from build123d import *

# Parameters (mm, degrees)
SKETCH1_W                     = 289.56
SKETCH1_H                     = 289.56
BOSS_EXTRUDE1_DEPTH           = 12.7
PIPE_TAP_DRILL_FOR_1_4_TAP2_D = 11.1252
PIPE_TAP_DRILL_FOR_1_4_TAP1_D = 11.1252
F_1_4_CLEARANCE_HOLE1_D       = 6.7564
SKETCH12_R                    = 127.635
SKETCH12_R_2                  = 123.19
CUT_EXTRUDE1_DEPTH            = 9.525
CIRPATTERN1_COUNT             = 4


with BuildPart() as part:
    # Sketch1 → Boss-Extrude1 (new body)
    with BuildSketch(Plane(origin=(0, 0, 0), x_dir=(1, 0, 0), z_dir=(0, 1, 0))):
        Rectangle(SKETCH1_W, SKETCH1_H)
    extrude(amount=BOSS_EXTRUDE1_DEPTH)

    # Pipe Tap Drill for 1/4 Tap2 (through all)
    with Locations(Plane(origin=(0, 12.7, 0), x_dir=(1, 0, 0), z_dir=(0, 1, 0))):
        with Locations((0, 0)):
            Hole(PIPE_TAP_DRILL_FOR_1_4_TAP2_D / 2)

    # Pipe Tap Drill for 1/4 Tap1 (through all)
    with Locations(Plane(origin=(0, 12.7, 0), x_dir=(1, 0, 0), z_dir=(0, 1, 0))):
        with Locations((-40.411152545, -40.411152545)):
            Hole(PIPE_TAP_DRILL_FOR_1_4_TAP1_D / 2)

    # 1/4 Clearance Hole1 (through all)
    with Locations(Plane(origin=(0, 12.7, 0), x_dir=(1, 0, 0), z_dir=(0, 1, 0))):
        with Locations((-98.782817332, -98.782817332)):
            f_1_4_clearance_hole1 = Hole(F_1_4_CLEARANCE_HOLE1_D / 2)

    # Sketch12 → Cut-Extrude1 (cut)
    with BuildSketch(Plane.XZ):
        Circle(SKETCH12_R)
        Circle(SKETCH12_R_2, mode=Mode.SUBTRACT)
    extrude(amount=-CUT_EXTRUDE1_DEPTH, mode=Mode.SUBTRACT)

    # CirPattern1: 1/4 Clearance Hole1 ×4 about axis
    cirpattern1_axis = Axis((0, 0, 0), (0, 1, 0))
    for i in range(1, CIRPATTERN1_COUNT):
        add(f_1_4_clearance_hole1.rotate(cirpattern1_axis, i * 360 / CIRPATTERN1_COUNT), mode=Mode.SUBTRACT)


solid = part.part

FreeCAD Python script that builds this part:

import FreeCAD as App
import Part
import Sketcher
Q = App.Units.Quantity

doc = App.newDocument("Part")
body = doc.addObject("PartDesign::Body", "Body")

# Sketch on XZ plane
sketch1 = body.newObject("Sketcher::SketchObject", "Sketch")
sketch1.AttachmentSupport = (doc.getObject("XZ_Plane"), [""])
sketch1.MapMode = "FlatFace"
sketch1.addGeometry([
    Part.LineSegment(App.Vector(-144.78, -144.78, 0), App.Vector(-144.78, 144.78, 0)),
    Part.LineSegment(App.Vector(-144.78, 144.78, 0), App.Vector(144.78, 144.78, 0)),
    Part.LineSegment(App.Vector(144.78, 144.78, 0), App.Vector(144.78, -144.78, 0)),
    Part.LineSegment(App.Vector(144.78, -144.78, 0), App.Vector(-144.78, -144.78, 0)),
], False)
sketch1.addConstraint([
    Sketcher.Constraint("Coincident", 0, 2, 1, 1),
    Sketcher.Constraint("Coincident", 1, 2, 2, 1),
    Sketcher.Constraint("Coincident", 2, 2, 3, 1),
    Sketcher.Constraint("Coincident", 3, 2, 0, 1),
    Sketcher.Constraint("Vertical", 0),
    Sketcher.Constraint("Horizontal", 1),
    Sketcher.Constraint("Vertical", 2),
    Sketcher.Constraint("Horizontal", 3),
    Sketcher.Constraint("Symmetric", 0, 2, 2, 2, -1, 1),
    Sketcher.Constraint("Equal", 3, 0),
    Sketcher.Constraint("DistanceX", 1, 1, 1, 2, Q("11.4 in")),
])
pad1 = body.newObject("PartDesign::Pad", "Pad")
pad1.Profile = sketch1
pad1.Length = Q("0.5 in")
pad1.Reversed = True

# Sketch on XZ plane
sketch2 = body.newObject("Sketcher::SketchObject", "Sketch001")
sketch2.AttachmentSupport = (doc.getObject("XZ_Plane"), [""])
sketch2.MapMode = "FlatFace"
sketch2.AttachmentOffset = App.Placement(App.Vector(0, 0, -0.5 * 25.4), App.Rotation())
sketch2.addGeometry(Part.Circle(App.Vector(0, 0, 0), App.Vector(0, 0, 1), 5.5626), False)
sketch2.addConstraint([
    Sketcher.Constraint("Coincident", 0, 3, -1, 1),
    Sketcher.Constraint("Diameter", 0, Q("0.438 in")),
])
doc.recompute()
hole = body.newObject("PartDesign::Hole", "Hole")
hole.Profile = sketch2
hole.ThreadType = "None"
hole.Diameter = Q("0.438 in")
hole.DepthType = "ThroughAll"
hole.Reversed = True

# Sketch on XZ plane
sketch3 = body.newObject("Sketcher::SketchObject", "Sketch002")
sketch3.AttachmentSupport = (doc.getObject("XZ_Plane"), [""])
sketch3.MapMode = "FlatFace"
sketch3.AttachmentOffset = App.Placement(App.Vector(0, 0, -0.5 * 25.4), App.Rotation())
sketch3.addGeometry(Part.Circle(App.Vector(-40.411153, 40.411153, 0), App.Vector(0, 0, 1), 5.5626), False)
sketch3.addConstraint([
    Sketcher.Constraint("Diameter", 0, Q("0.438 in")),
    Sketcher.Constraint("DistanceX", 0, 3, -1, 1, 40.411153),
    Sketcher.Constraint("DistanceY", -1, 1, 0, 3, 40.411153),
])
doc.recompute()
hole2 = body.newObject("PartDesign::Hole", "Hole001")
hole2.Profile = sketch3
hole2.ThreadType = "None"
hole2.Diameter = Q("0.438 in")
hole2.DepthType = "ThroughAll"
hole2.Reversed = True

# Sketch on XZ plane
sketch4 = body.newObject("Sketcher::SketchObject", "Sketch003")
sketch4.AttachmentSupport = (doc.getObject("XZ_Plane"), [""])
sketch4.MapMode = "FlatFace"
sketch4.AttachmentOffset = App.Placement(App.Vector(0, 0, -0.5 * 25.4), App.Rotation())
sketch4.addGeometry(Part.Circle(App.Vector(-98.782817, 98.782817, 0), App.Vector(0, 0, 1), 3.3782), False)
sketch4.addConstraint([
    Sketcher.Constraint("Diameter", 0, Q("0.266 in")),
    Sketcher.Constraint("DistanceX", 0, 3, -1, 1, 98.782817),
    Sketcher.Constraint("DistanceY", -1, 1, 0, 3, 98.782817),
])
doc.recompute()
hole3 = body.newObject("PartDesign::Hole", "Hole002")
hole3.Profile = sketch4
hole3.ThreadType = "None"
hole3.Diameter = Q("0.266 in")
hole3.DepthType = "ThroughAll"
hole3.Reversed = True

# Sketch on XZ plane
sketch5 = body.newObject("Sketcher::SketchObject", "Sketch004")
sketch5.AttachmentSupport = (doc.getObject("XZ_Plane"), [""])
sketch5.MapMode = "FlatFace"
sketch5.addGeometry([
    Part.Circle(App.Vector(0, 0, 0), App.Vector(0, 0, 1), 127.635),
    Part.Circle(App.Vector(0, 0, 0), App.Vector(0, 0, 1), 123.19),
], False)
sketch5.addConstraint([
    Sketcher.Constraint("Coincident", 0, 3, -1, 1),
    Sketcher.Constraint("Coincident", 1, 3, -1, 1),
    Sketcher.Constraint("Diameter", 1, Q("9.7 in")),
    Sketcher.Constraint("Diameter", 0, Q("10.05 in")),
])
pocket1 = body.newObject("PartDesign::Pocket", "Pocket")
pocket1.Profile = sketch5
pocket1.Length = Q("0.375 in")
doc.recompute()

polarpattern = body.newObject("PartDesign::PolarPattern", "PolarPattern")
polarpattern.Originals = [hole3]
polarpattern.Axis = (doc.getObject("Y_Axis"), [""])
polarpattern.Angle = 360
polarpattern.Occurrences = 4
body.Tip = polarpattern

doc.recompute()
